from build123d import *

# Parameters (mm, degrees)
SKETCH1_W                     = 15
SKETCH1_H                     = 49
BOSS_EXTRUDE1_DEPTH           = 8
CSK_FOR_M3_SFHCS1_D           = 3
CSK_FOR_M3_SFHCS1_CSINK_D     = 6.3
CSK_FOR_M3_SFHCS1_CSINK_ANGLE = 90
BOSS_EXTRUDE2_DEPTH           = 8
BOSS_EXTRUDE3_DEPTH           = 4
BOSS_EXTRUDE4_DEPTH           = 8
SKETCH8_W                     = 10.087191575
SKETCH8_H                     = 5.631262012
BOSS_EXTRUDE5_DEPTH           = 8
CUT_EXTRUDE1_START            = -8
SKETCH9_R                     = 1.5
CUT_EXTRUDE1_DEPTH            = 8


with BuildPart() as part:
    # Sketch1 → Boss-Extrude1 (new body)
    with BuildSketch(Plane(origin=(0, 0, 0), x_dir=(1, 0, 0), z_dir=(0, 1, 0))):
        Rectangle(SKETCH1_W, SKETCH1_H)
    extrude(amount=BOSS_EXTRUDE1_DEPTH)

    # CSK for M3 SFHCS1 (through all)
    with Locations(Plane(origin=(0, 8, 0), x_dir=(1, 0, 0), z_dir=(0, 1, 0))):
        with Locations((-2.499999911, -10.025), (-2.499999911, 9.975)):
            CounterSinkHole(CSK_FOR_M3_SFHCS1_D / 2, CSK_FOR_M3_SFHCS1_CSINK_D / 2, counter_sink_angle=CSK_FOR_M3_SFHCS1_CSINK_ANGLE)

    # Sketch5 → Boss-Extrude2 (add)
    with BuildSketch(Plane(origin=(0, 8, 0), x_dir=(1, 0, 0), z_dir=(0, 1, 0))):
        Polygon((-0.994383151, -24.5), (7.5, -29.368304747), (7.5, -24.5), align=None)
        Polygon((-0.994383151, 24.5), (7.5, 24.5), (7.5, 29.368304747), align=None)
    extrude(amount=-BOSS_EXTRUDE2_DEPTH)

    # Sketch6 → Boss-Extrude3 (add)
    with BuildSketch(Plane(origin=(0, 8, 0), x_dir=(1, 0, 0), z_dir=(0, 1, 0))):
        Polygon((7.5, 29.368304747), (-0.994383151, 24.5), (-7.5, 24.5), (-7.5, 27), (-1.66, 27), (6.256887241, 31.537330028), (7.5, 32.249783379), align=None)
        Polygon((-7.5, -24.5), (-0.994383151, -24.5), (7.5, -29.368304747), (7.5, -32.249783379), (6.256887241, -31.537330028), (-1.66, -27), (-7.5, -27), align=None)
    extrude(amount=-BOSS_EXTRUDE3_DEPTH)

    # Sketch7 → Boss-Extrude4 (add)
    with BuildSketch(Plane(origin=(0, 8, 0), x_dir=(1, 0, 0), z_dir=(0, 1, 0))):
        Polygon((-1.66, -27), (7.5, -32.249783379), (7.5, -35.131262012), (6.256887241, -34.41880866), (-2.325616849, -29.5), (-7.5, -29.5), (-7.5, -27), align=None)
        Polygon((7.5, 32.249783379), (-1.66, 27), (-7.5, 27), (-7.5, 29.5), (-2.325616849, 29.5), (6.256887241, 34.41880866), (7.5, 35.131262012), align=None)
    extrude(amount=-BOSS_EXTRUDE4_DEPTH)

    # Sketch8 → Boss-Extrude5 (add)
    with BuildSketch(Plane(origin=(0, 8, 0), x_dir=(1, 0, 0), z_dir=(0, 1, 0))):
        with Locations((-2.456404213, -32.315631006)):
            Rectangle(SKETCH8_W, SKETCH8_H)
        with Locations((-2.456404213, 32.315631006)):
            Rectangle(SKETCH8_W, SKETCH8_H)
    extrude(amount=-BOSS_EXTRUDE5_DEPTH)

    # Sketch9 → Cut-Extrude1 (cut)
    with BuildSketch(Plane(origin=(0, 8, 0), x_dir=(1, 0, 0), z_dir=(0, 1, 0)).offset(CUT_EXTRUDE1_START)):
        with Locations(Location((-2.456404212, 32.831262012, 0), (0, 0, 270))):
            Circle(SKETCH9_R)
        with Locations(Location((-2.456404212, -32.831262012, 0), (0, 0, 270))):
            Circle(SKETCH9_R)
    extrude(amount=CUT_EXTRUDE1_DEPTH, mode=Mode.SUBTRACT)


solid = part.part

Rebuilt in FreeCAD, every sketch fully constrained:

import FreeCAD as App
import Part
import Sketcher

V = App.Vector
Q = App.Units.Quantity


def add_polygon(sketch, points):
    """Adds a closed chain of lines whose ends are joined by coincident constraints."""
    first, n = sketch.GeometryCount, len(points)
    for a, b in zip(points, points[1:] + points[:1]):
        sketch.addGeometry(Part.LineSegment(App.Vector(*a, 0), App.Vector(*b, 0)), False)
    for i in range(n):
        sketch.addConstraint(Sketcher.Constraint("Coincident", first + i, 2, first + (i + 1) % n, 1))

doc = App.newDocument("Part")
body = doc.addObject("PartDesign::Body", "Body")

# Sketch on XZ plane
sketch1 = doc.addObject("Sketcher::SketchObject", "Sketch")
body.addObject(sketch1)
sketch1.AttachmentSupport = (doc.XZ_Plane, [""])
sketch1.MapMode = "FlatFace"
add_polygon(sketch1, [(-8, -24), (-8, 24), (8, 24), (8, -24)])  # lines 0-3
sketch1.addConstraint(Sketcher.Constraint("Vertical", 0))
sketch1.addConstraint(Sketcher.Constraint("Horizontal", 1))
sketch1.addConstraint(Sketcher.Constraint("Vertical", 2))
sketch1.addConstraint(Sketcher.Constraint("Horizontal", 3))
sketch1.addConstraint(Sketcher.Constraint("Symmetric", 0, 2, 2, 2, -1, 1))
sketch1.addConstraint(Sketcher.Constraint("DistanceX", 1, 1, 1, 2, Q("15 mm")))
sketch1.addConstraint(Sketcher.Constraint("DistanceY", 0, 1, 0, 2, Q("49 mm")))
pad1 = doc.addObject("PartDesign::Pad", "Pad")
body.addObject(pad1)
pad1.Profile = sketch1
pad1.Length = 8
pad1.Reversed = True

# Sketch on XZ plane
sketch2 = doc.addObject("Sketcher::SketchObject", "Sketch001")
body.addObject(sketch2)
sketch2.AttachmentSupport = (doc.XZ_Plane, [""])
sketch2.MapMode = "FlatFace"
sketch2.AttachmentOffset = App.Placement(V(0, 0, -8), App.Rotation())
sketch2.addGeometry(Part.Circle(V(-2.5, 10, 0), V(0, 0, 1), 1.5), False)
sketch2.addGeometry(Part.Circle(V(-2.5, -10, 0), V(0, 0, 1), 1.5), False)
sketch2.addConstraint(Sketcher.Constraint("Equal", 0, 1))
sketch2.addConstraint(Sketcher.Constraint("Vertical", 0, 3, 1, 3))
sketch2.addConstraint(Sketcher.Constraint("Diameter", 0, Q("3 mm")))
sketch2.addConstraint(Sketcher.Constraint("DistanceY", 1, 3, 0, 3, Q("20 mm")))
sketch2.addConstraint(Sketcher.Constraint("DistanceX", 0, 3, -1, 1, Q("2.5 mm")))
sketch2.addConstraint(Sketcher.Constraint("DistanceY", -1, 1, 0, 3, Q("10.025 mm")))
doc.recompute()
hole = doc.addObject("PartDesign::Hole", "Hole")
body.addObject(hole)
hole.Profile = sketch2
hole.ThreadType = "None"
hole.Diameter = 3
hole.DepthType = "ThroughAll"
hole.HoleCutType = "Countersink"
hole.HoleCutDiameter = 6.3
hole.HoleCutCountersinkAngle = 90
hole.Reversed = True

# Sketch on XZ plane
sketch3 = doc.addObject("Sketcher::SketchObject", "Sketch002")
body.addObject(sketch3)
sketch3.AttachmentSupport = (doc.XZ_Plane, [""])
sketch3.MapMode = "FlatFace"
sketch3.AttachmentOffset = App.Placement(V(0, 0, -8), App.Rotation())
add_polygon(sketch3, [(-1, 24.5), (7.5, 29.4), (7.5, 24.5)])  # lines 0-2
add_polygon(sketch3, [(-1, -24.5), (7.5, -24.5), (7.5, -29.4)])  # lines 3-5
sketch3.addConstraint(Sketcher.Constraint("Vertical", 1))
sketch3.addConstraint(Sketcher.Constraint("Horizontal", 2))
sketch3.addConstraint(Sketcher.Constraint("Horizontal", 3))
sketch3.addConstraint(Sketcher.Constraint("Vertical", 4))
sketch3.addConstraint(Sketcher.Constraint("Symmetric", 1, 2, 3, 2, -1))
sketch3.addConstraint(Sketcher.Constraint("Vertical", 2, 2, 5, 2))
sketch3.addConstraint(Sketcher.Constraint("Equal", 1, 4))
sketch3.addConstraint(Sketcher.Constraint("DistanceY", 3, 2, 1, 2, Q("49 mm")))
sketch3.addConstraint(Sketcher.Constraint("DistanceX", -1, 1, 0, 2, Q("7.5 mm")))
sketch3.addConstraint(Sketcher.Constraint("DistanceX", 2, 2, 2, 1, Q("8.494383 mm")))
sketch3.addConstraint(Sketcher.Constraint("DistanceY", 1, 2, 1, 1, Q("4.868305 mm")))
pad2 = doc.addObject("PartDesign::Pad", "Pad001")
body.addObject(pad2)
pad2.Profile = sketch3
pad2.Length = 8

# Sketch on XZ plane
sketch4 = doc.addObject("Sketcher::SketchObject", "Sketch003")
body.addObject(sketch4)
sketch4.AttachmentSupport = (doc.XZ_Plane, [""])
sketch4.MapMode = "FlatFace"
sketch4.AttachmentOffset = App.Placement(V(0, 0, -8), App.Rotation())
add_polygon(sketch4, [(-1, -24.5), (7.5, -29.4), (7.5, -32.2), (6.3, -31.5), (-1.7, -27), (-7.5, -27), (-7.5, -24.5)])  # lines 0-6
add_polygon(sketch4, [(-1, 24.5), (-7.5, 24.5), (-7.5, 27), (-1.7, 27), (6.3, 31.5), (7.5, 32.2), (7.5, 29.4)])  # lines 7-13
sketch4.addConstraint(Sketcher.Constraint("Vertical", 1))
sketch4.addConstraint(Sketcher.Constraint("Horizontal", 4))
sketch4.addConstraint(Sketcher.Constraint("Vertical", 5))
sketch4.addConstraint(Sketcher.Constraint("Horizontal", 6))
sketch4.addConstraint(Sketcher.Constraint("Horizontal", 7))
sketch4.addConstraint(Sketcher.Constraint("Vertical", 8))
sketch4.addConstraint(Sketcher.Constraint("Horizontal", 9))
sketch4.addConstraint(Sketcher.Constraint("Vertical", 12))
sketch4.addConstraint(Sketcher.Constraint("Symmetric", 5, 2, 7, 2, -1))
sketch4.addConstraint(Sketcher.Constraint("Symmetric", 3, 2, 9, 2, -1))
sketch4.addConstraint(Sketcher.Constraint("Symmetric", 2, 2, 10, 2, -1))
sketch4.addConstraint(Sketcher.Constraint("Symmetric", 1, 2, 11, 2, -1))
sketch4.addConstraint(Sketcher.Constraint("Parallel", 0, 2))
sketch4.addConstraint(Sketcher.Constraint("Parallel", 2, 3))
sketch4.addConstraint(Sketcher.Constraint("Parallel", 11, 13))
sketch4.addConstraint(Sketcher.Constraint("Vertical", 6, 2, 13, 2))
sketch4.addConstraint(Sketcher.Constraint("DistanceY", 5, 1, 5, 2, Q("2.5 mm")))
sketch4.addConstraint(Sketcher.Constraint("DistanceY", 3, 2, -1, 1, Q("27 mm")))
sketch4.addConstraint(Sketcher.Constraint("DistanceX", 4, 2, 0, 2, Q("15 mm")))
sketch4.addConstraint(Sketcher.Constraint("DistanceX", 4, 2, 4, 1, Q("5.84 mm")))
sketch4.addConstraint(Sketcher.Constraint("DistanceX", -1, 1, 0, 2, Q("7.5 mm")))
sketch4.addConstraint(Sketcher.Constraint("Distance", 2, Q("1.432801 mm")))
sketch4.addConstraint(Sketcher.Constraint("DistanceY", 1, 2, 1, 1, Q("2.881479 mm")))
sketch4.addConstraint(Sketcher.Constraint("DistanceX", 6, 1, 6, 2, Q("6.505617 mm")))
pad3 = doc.addObject("PartDesign::Pad", "Pad002")
body.addObject(pad3)
pad3.Profile = sketch4
pad3.Length = 4

# Sketch on XZ plane
sketch5 = doc.addObject("Sketcher::SketchObject", "Sketch004")
body.addObject(sketch5)
sketch5.AttachmentSupport = (doc.XZ_Plane, [""])
sketch5.MapMode = "FlatFace"
sketch5.AttachmentOffset = App.Placement(V(0, 0, -8), App.Rotation())
add_polygon(sketch5, [(7.5, 32.2), (-1.7, 27), (-7.5, 27), (-7.5, 29.5), (-2.3, 29.5), (6.3, 34.4), (7.5, 35.1)])  # lines 0-6
add_polygon(sketch5, [(-1.7, -27), (7.5, -32.2), (7.5, -35.1), (6.3, -34.4), (-2.3, -29.5), (-7.5, -29.5), (-7.5, -27)])  # lines 7-13
sketch5.addConstraint(Sketcher.Constraint("Horizontal", 1))
sketch5.addConstraint(Sketcher.Constraint("Vertical", 2))
sketch5.addConstraint(Sketcher.Constraint("Horizontal", 3))
sketch5.addConstraint(Sketcher.Constraint("Vertical", 6))
sketch5.addConstraint(Sketcher.Constraint("Vertical", 8))
sketch5.addConstraint(Sketcher.Constraint("Horizontal", 11))
sketch5.addConstraint(Sketcher.Constraint("Vertical", 12))
sketch5.addConstraint(Sketcher.Constraint("Horizontal", 13))
sketch5.addConstraint(Sketcher.Constraint("Symmetric", 6, 2, 7, 2, -1))
sketch5.addConstraint(Sketcher.Constraint("Symmetric", 4, 2, 9, 2, -1))
sketch5.addConstraint(Sketcher.Constraint("Symmetric", 3, 2, 10, 2, -1))
sketch5.addConstraint(Sketcher.Constraint("Symmetric", 1, 2, 12, 2, -1))
sketch5.addConstraint(Sketcher.Constraint("Parallel", 0, 4))
sketch5.addConstraint(Sketcher.Constraint("Parallel", 4, 5))
sketch5.addConstraint(Sketcher.Constraint("Parallel", 7, 9))
sketch5.addConstraint(Sketcher.Constraint("Parallel", 9, 10))
sketch5.addConstraint(Sketcher.Constraint("DistanceY", 2, 1, 2, 2, Q("2.5 mm")))
sketch5.addConstraint(Sketcher.Constraint("DistanceY", -1, 1, 0, 2, Q("27 mm")))
sketch5.addConstraint(Sketcher.Constraint("DistanceX", 2, 2, 5, 2, Q("15 mm")))
sketch5.addConstraint(Sketcher.Constraint("DistanceX", 1, 2, 1, 1, Q("5.84 mm")))
sketch5.addConstraint(Sketcher.Constraint("DistanceX", 1, 2, -1, 1, Q("7.5 mm")))
sketch5.addConstraint(Sketcher.Constraint("Distance", 5, Q("1.432801 mm")))
sketch5.addConstraint(Sketcher.Constraint("DistanceY", 6, 2, 6, 1, Q("2.881479 mm")))
sketch5.addConstraint(Sketcher.Constraint("Distance", 4, Q("9.892121 mm")))
pad4 = doc.addObject("PartDesign::Pad", "Pad003")
body.addObject(pad4)
pad4.Profile = sketch5
pad4.Length = 8

# Sketch on XZ plane
sketch6 = doc.addObject("Sketcher::SketchObject", "Sketch005")
body.addObject(sketch6)
sketch6.AttachmentSupport = (doc.XZ_Plane, [""])
sketch6.MapMode = "FlatFace"
sketch6.AttachmentOffset = App.Placement(V(0, 0, -8), App.Rotation())
add_polygon(sketch6, [(-8, 30), (-8, 35), (3, 35), (3, 30)])  # lines 0-3
add_polygon(sketch6, [(-8, -35), (-8, -30), (3, -30), (3, -35)])  # lines 4-7
sketch6.addConstraint(Sketcher.Constraint("Vertical", 0))
sketch6.addConstraint(Sketcher.Constraint("Horizontal", 1))
sketch6.addConstraint(Sketcher.Constraint("Vertical", 2))
sketch6.addConstraint(Sketcher.Constraint("Horizontal", 3))
sketch6.addConstraint(Sketcher.Constraint("Vertical", 4))
sketch6.addConstraint(Sketcher.Constraint("Horizontal", 5))
sketch6.addConstraint(Sketcher.Constraint("Vertical", 6))
sketch6.addConstraint(Sketcher.Constraint("Horizontal", 7))
sketch6.addConstraint(Sketcher.Constraint("Symmetric", 3, 2, 4, 2, -1))
sketch6.addConstraint(Sketcher.Constraint("Symmetric", 1, 2, 6, 2, -1))
sketch6.addConstraint(Sketcher.Constraint("DistanceY", 4, 2, 3, 2, Q("59 mm")))
sketch6.addConstraint(Sketcher.Constraint("DistanceX", 0, 2, -1, 1, Q("7.5 mm")))
sketch6.addConstraint(Sketcher.Constraint("DistanceX", 1, 1, 1, 2, Q("10.087192 mm")))
sketch6.addConstraint(Sketcher.Constraint("DistanceY", 0, 1, 0, 2, Q("5.631262 mm")))
pad5 = doc.addObject("PartDesign::Pad", "Pad004")
body.addObject(pad5)
pad5.Profile = sketch6
pad5.Length = 8

# Sketch on XZ plane
sketch7 = doc.addObject("Sketcher::SketchObject", "Sketch006")
body.addObject(sketch7)
sketch7.AttachmentSupport = (doc.XZ_Plane, [""])
sketch7.MapMode = "FlatFace"
sketch7.addGeometry(Part.Circle(V(-2.5, -32.8, 0), V(0, 0, 1), 1.5), False)
sketch7.addGeometry(Part.Circle(V(-2.5, 32.8, 0), V(0, 0, 1), 1.5), False)
sketch7.addConstraint(Sketcher.Constraint("Equal", 0, 1))
sketch7.addConstraint(Sketcher.Constraint("Symmetric", 0, 3, 1, 3, -1))
sketch7.addConstraint(Sketcher.Constraint("Diameter", 0, Q("3 mm")))
sketch7.addConstraint(Sketcher.Constraint("DistanceX", 0, 3, -1, 1, Q("2.456404 mm")))
sketch7.addConstraint(Sketcher.Constraint("DistanceY", 0, 3, -1, 1, Q("32.831262 mm")))
pocket1 = doc.addObject("PartDesign::Pocket", "Pocket")
body.addObject(pocket1)
pocket1.Profile = sketch7
pocket1.Length = 8

doc.recompute()
